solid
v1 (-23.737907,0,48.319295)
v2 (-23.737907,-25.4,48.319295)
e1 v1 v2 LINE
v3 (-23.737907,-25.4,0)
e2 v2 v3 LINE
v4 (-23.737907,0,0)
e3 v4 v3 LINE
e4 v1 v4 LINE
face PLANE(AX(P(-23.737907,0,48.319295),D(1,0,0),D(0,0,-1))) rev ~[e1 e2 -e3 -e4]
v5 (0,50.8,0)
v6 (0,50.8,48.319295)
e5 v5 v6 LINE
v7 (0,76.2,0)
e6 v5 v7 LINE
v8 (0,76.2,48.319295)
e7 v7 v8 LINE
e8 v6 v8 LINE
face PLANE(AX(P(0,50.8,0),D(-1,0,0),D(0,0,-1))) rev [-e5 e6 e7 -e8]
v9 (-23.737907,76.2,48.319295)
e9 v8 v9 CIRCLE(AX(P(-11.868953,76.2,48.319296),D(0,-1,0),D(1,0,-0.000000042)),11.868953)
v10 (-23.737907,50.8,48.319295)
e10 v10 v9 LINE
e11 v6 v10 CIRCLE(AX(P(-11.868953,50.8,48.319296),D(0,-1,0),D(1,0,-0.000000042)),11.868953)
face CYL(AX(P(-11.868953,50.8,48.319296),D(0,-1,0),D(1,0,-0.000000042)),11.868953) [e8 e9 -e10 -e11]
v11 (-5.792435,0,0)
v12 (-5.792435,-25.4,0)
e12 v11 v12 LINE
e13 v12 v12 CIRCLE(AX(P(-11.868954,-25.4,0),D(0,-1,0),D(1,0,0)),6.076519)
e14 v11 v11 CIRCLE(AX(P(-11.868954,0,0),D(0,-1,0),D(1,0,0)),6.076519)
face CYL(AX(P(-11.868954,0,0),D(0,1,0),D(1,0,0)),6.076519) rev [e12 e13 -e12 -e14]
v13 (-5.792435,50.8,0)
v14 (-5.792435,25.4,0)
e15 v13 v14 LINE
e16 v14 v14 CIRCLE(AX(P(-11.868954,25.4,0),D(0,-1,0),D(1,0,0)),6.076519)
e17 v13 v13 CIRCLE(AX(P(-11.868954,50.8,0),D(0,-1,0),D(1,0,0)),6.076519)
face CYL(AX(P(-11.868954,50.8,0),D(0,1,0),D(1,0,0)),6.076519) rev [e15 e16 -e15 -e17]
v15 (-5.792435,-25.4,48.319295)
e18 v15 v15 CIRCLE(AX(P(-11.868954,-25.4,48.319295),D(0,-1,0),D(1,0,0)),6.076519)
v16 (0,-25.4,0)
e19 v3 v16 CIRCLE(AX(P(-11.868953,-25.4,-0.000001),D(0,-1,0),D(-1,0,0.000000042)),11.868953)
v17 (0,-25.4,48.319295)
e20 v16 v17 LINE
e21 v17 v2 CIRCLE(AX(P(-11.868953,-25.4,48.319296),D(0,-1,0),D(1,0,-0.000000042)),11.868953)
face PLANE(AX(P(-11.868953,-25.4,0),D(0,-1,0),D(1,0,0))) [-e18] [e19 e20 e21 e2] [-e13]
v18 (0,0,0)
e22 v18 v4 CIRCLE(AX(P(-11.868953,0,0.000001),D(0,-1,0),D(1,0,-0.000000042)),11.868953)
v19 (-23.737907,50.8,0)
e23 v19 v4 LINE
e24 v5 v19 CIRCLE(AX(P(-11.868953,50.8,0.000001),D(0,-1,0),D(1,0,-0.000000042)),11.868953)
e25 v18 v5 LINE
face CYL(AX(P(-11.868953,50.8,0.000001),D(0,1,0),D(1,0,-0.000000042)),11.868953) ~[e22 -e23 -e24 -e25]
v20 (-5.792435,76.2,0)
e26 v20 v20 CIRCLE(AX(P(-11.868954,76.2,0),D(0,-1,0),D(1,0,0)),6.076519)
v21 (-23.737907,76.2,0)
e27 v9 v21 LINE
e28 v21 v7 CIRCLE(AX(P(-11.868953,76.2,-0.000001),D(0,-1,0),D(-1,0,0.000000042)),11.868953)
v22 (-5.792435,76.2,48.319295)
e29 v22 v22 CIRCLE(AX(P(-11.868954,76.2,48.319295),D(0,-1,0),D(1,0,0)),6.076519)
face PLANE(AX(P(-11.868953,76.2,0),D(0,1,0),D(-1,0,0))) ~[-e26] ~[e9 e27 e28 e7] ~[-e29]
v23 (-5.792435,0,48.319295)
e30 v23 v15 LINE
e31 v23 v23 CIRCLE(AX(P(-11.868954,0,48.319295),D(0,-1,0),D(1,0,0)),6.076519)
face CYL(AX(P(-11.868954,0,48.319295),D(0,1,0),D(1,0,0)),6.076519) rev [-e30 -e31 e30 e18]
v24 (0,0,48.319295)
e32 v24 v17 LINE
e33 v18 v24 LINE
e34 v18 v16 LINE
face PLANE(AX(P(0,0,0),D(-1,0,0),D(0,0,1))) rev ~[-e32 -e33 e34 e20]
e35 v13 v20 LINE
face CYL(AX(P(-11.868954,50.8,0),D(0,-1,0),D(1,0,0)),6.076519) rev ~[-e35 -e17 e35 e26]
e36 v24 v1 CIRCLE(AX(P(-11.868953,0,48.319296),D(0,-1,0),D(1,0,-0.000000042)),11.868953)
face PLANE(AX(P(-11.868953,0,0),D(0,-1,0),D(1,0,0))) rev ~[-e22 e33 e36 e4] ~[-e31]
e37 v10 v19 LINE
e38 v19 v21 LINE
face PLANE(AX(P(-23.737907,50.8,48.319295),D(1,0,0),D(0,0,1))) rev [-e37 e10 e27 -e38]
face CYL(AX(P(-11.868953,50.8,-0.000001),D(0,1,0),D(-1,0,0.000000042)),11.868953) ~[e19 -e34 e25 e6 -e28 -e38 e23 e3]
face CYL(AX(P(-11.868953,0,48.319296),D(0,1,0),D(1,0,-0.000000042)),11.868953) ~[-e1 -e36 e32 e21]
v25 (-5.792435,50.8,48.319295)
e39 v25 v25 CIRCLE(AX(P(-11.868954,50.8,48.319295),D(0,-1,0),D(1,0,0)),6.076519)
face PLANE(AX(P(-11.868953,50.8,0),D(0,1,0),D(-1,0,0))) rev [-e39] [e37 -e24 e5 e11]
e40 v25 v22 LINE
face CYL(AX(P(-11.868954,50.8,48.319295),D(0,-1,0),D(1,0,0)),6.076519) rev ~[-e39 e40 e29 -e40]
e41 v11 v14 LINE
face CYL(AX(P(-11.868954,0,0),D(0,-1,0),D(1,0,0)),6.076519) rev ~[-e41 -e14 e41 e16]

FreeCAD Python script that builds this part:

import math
import FreeCAD as App
import Part
import Sketcher
from FreeCAD import Vector

doc = App.newDocument("Part")
params = doc.addObject("Spreadsheet::Sheet", "Params")
for row, (alias, value) in enumerate([
    ("pad1_length", "1 in"),
    ("pad2_length", "1 in"),
], start=1):
    params.set(f"A{row}", alias)
    params.set(f"B{row}", "=" + value)
    params.setAlias(f"B{row}", alias)

body = doc.addObject("PartDesign::Body", "Body")

sketch1 = body.newObject("Sketcher::SketchObject", "Sketch")
sketch1.AttachmentSupport = (doc.getObject("XZ_Plane"), [""])
sketch1.MapMode = "FlatFace"
sketch1.addGeometry([
    Part.ArcOfCircle(Part.Circle(Vector(-12, 0, 0), Vector(0, 0, 1), 12), math.radians(180), math.radians(360)),
    Part.LineSegment(Vector(0, 0, 0), Vector(0, 48, 0)),
    Part.ArcOfCircle(Part.Circle(Vector(-12, 48, 0), Vector(0, 0, 1), 12), math.radians(0), math.radians(180)),
    Part.LineSegment(Vector(-24, 48, 0), Vector(-24, 0, 0)),
    Part.Circle(Vector(-12, 0, 0), Vector(0, 0, 1), 6),
    Part.Circle(Vector(-12, 48, 0), Vector(0, 0, 1), 6),
], False)
sketch1.addConstraint([
    Sketcher.Constraint("Tangent", 0, 2, 1, 1),
    Sketcher.Constraint("Tangent", 1, 2, 2, 1),
    Sketcher.Constraint("Tangent", 2, 2, 3, 1),
    Sketcher.Constraint("Tangent", 3, 2, 0, 1),
    Sketcher.Constraint("Vertical", 1),
    Sketcher.Constraint("Vertical", 3),
    Sketcher.Constraint("Coincident", 0, 2, -1, 1),
    Sketcher.Constraint("Coincident", 4, 3, 0, 3),
    Sketcher.Constraint("Coincident", 5, 3, 2, 3),
    Sketcher.Constraint("Equal", 4, 5),
    Sketcher.Constraint("Diameter", 4, 12.153038),
    Sketcher.Constraint("Radius", 0, 11.868953),
    Sketcher.Constraint("DistanceY", 1, 1, 1, 2, 48.319295),
])
pad1 = body.newObject("PartDesign::Pad", "Pad")
pad1.Profile = sketch1
pad1.setExpression("Length", "Params.pad1_length")

sketch2 = body.newObject("Sketcher::SketchObject", "Sketch001")
sketch2.AttachmentSupport = (doc.getObject("XZ_Plane"), [""])
sketch2.MapMode = "FlatFace"
sketch2.addGeometry([
    Part.ArcOfCircle(Part.Circle(Vector(-12, 0, 0), Vector(0, 0, 1), 12), math.radians(0), math.radians(180)),
    Part.ArcOfCircle(Part.Circle(Vector(-12, 0, 0), Vector(0, 0, 1), 12), math.radians(180), math.radians(360)),
    Part.Circle(Vector(-12, 0, 0), Vector(0, 0, 1), 6),
], False)
sketch2.addConstraint([
    Sketcher.Constraint("Tangent", 0, 1, 1, 2),
    Sketcher.Constraint("Coincident", 1, 1, 0, 2),
    Sketcher.Constraint("Coincident", 0, 1, -1, 1),
    Sketcher.Constraint("Coincident", 2, 3, 0, 3),
    Sketcher.Constraint("PointOnObject", 0, 3, -1),
    Sketcher.Constraint("PointOnObject", 1, 1, -1),
    Sketcher.Constraint("Diameter", 2, 12.153038),
    Sketcher.Constraint("Radius", 0, 11.868953),
])
pad2 = body.newObject("PartDesign::Pad", "Pad001")
pad2.Profile = sketch2
pad2.setExpression("Length", "Params.pad2_length")
pad2.Reversed = True
body2 = doc.addObject("PartDesign::Body", "Body001")
doc.recompute()

body2.BaseFeature = body
doc.recompute()

mirroring = doc.addObject("Part::Mirroring", "Mirroring")
mirroring.Source = body
mirroring.Base = Vector(-11.868954, 25.4, 0)
mirroring.Normal = Vector(0, 1, 0)
body3 = doc.addObject("PartDesign::Body", "Body002")
body3.BaseFeature = mirroring
boolean = body2.newObject("PartDesign::Boolean", "Boolean")
boolean.Type = "Fuse"
boolean.addObjects([body3])
doc.recompute()
mirroring.Visibility = False

doc.recompute()
